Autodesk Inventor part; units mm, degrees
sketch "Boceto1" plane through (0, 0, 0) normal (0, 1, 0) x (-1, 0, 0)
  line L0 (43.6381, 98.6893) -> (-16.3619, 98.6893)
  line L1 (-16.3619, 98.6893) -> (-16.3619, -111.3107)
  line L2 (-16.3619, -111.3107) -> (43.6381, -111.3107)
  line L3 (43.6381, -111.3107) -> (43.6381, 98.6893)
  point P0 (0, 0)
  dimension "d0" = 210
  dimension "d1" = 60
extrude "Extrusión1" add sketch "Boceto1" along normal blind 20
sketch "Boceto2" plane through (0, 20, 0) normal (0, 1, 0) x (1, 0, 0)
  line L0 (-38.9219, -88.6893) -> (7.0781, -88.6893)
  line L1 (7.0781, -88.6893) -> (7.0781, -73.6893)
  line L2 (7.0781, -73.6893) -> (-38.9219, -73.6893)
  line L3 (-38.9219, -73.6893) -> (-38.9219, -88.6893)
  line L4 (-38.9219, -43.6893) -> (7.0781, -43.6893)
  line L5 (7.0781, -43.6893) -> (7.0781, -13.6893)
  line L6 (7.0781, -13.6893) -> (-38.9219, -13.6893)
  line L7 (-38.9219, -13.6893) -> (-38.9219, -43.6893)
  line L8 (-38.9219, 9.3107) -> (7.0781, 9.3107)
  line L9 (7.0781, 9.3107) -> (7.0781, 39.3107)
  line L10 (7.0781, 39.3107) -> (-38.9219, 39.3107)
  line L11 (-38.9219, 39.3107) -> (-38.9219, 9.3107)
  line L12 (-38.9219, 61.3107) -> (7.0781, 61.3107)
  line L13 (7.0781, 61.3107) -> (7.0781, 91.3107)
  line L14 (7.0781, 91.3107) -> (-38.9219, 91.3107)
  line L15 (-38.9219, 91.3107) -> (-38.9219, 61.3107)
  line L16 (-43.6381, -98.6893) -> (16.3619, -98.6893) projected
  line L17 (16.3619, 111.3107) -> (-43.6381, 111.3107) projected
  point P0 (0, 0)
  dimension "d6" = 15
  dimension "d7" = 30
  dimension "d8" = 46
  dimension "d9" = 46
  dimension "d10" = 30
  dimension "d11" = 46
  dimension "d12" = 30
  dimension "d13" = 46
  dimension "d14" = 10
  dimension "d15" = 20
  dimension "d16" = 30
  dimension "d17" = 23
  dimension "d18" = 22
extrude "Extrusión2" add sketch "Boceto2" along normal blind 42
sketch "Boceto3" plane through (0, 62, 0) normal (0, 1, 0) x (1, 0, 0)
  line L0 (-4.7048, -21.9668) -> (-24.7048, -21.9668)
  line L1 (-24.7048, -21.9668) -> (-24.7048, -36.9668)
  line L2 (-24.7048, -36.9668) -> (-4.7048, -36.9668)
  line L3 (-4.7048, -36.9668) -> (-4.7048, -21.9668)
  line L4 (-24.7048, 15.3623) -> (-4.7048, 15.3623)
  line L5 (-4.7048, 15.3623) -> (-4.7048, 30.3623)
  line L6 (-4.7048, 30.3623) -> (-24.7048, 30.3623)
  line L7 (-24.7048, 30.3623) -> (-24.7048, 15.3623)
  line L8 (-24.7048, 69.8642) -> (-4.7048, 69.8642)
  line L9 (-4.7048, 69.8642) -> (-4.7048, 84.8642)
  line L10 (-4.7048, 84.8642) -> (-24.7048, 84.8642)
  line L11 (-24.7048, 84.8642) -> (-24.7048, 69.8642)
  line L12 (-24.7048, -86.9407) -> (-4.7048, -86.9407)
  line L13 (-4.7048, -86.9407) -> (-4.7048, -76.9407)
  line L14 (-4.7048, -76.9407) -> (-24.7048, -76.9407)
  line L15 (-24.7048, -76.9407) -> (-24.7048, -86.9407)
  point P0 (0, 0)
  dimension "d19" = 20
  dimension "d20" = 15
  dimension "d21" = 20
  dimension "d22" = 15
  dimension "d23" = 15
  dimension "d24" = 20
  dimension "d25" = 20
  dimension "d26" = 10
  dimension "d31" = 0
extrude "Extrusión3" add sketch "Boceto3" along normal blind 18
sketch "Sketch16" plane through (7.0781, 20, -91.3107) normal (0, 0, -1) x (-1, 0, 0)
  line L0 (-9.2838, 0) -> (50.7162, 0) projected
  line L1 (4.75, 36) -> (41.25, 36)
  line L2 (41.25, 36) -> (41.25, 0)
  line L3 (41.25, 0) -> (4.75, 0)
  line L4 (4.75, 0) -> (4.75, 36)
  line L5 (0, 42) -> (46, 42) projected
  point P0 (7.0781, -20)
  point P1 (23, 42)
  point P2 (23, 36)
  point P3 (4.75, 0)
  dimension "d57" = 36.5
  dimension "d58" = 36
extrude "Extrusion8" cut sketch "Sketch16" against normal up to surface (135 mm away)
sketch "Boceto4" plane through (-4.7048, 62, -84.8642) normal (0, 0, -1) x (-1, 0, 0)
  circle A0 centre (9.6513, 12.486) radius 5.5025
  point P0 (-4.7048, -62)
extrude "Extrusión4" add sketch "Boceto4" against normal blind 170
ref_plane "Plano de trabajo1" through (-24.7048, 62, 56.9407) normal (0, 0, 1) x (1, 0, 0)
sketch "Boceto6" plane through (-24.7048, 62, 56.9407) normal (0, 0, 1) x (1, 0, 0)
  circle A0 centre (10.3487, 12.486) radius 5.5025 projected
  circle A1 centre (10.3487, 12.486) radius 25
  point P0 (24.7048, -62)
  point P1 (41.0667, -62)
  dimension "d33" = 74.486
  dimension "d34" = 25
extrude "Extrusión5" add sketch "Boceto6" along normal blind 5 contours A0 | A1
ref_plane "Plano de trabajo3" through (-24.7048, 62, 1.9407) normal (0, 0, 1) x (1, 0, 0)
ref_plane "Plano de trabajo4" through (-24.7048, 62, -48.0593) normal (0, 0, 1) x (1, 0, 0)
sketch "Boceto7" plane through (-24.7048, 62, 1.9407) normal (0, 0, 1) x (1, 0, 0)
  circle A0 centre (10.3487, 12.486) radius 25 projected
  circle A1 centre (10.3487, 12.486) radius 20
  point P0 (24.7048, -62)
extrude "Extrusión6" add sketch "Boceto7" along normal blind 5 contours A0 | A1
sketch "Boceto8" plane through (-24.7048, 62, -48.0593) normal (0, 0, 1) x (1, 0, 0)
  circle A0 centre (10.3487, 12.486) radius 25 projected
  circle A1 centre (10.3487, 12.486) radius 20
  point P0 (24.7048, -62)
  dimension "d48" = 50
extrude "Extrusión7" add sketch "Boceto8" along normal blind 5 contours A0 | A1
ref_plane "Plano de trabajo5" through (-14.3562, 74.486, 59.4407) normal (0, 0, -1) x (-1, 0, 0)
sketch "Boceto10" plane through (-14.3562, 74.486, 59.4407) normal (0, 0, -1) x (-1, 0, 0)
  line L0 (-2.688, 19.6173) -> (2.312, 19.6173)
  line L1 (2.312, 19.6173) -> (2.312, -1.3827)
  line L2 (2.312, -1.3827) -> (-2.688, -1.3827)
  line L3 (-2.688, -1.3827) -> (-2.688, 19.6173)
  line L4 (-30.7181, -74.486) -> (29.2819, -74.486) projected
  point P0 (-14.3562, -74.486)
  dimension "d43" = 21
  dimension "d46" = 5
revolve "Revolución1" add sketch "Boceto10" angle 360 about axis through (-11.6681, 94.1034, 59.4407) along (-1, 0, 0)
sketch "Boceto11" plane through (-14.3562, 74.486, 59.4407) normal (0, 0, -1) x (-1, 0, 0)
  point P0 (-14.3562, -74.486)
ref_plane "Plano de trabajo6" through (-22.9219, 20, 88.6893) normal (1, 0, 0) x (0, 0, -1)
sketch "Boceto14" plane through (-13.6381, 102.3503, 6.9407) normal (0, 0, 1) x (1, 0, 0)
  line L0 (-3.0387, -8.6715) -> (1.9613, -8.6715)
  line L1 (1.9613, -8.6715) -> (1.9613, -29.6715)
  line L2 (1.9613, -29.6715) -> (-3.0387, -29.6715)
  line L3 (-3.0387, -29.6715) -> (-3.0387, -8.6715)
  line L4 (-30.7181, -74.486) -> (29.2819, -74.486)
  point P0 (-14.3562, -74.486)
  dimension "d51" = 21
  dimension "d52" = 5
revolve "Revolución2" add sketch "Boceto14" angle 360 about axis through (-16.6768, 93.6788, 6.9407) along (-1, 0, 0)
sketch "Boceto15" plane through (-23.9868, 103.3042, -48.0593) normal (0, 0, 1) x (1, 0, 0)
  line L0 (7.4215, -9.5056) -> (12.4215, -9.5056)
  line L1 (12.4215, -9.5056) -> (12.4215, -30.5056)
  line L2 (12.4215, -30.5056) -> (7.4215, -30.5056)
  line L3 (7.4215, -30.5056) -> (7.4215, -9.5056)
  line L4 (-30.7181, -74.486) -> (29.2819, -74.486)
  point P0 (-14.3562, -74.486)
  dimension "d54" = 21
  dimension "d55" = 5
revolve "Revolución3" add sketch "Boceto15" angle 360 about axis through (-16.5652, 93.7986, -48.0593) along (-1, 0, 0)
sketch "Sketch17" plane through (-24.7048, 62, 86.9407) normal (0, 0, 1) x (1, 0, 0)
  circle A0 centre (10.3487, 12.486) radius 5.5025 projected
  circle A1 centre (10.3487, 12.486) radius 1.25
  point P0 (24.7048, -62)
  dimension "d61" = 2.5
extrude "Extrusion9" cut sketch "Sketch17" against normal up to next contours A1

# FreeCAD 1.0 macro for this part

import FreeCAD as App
import Part
import Sketcher
from FreeCAD import Vector

doc = App.newDocument("Part")
body = doc.addObject("PartDesign::Body", "Body")

# Sketch on XZ plane
sketch1 = doc.addObject("Sketcher::SketchObject", "Sketch")
body.addObject(sketch1)
sketch1.AttachmentSupport = (doc.XZ_Plane, [""])
sketch1.MapMode = "FlatFace"
sketch1.addGeometry([
    Part.LineSegment(Vector(-44, -111, 0), Vector(-44, 99, 0)),
    Part.LineSegment(Vector(-44, 99, 0), Vector(16, 99, 0)),
    Part.LineSegment(Vector(16, 99, 0), Vector(16, -111, 0)),
    Part.LineSegment(Vector(16, -111, 0), Vector(-44, -111, 0)),
], False)
sketch1.addConstraint([
    Sketcher.Constraint("Coincident", 0, 2, 1, 1),
    Sketcher.Constraint("Coincident", 1, 2, 2, 1),
    Sketcher.Constraint("Coincident", 2, 2, 3, 1),
    Sketcher.Constraint("Coincident", 3, 2, 0, 1),
    Sketcher.Constraint("Vertical", 0),
    Sketcher.Constraint("Horizontal", 1),
    Sketcher.Constraint("Vertical", 2),
    Sketcher.Constraint("Horizontal", 3),
    Sketcher.Constraint("DistanceX", 1, 1, 1, 2, 60.0),
    Sketcher.Constraint("DistanceY", 0, 1, 0, 2, 210.0),
    Sketcher.Constraint("DistanceX", 0, 2, -1, 1, 43.638),
    Sketcher.Constraint("DistanceY", -1, 1, 0, 2, 98.6893),
])
pad1 = doc.addObject("PartDesign::Pad", "Pad")
body.addObject(pad1)
pad1.Profile = sketch1
pad1.Length = 20
pad1.Reversed = True

# Sketch on XZ plane
sketch2 = doc.addObject("Sketcher::SketchObject", "Sketch001")
body.addObject(sketch2)
sketch2.AttachmentSupport = (doc.XZ_Plane, [""])
sketch2.MapMode = "FlatFace"
sketch2.AttachmentOffset = App.Placement(Vector(0, 0, -20), App.Rotation())
sketch2.addGeometry([
    Part.LineSegment(Vector(-39, 74, 0), Vector(-39, 89, 0)),  # 0
    Part.LineSegment(Vector(-39, 89, 0), Vector(7, 89, 0)),  # 1
    Part.LineSegment(Vector(7, 89, 0), Vector(7, 74, 0)),  # 2
    Part.LineSegment(Vector(7, 74, 0), Vector(-39, 74, 0)),  # 3
    Part.LineSegment(Vector(-39, 14, 0), Vector(-39, 44, 0)),  # 4
    Part.LineSegment(Vector(-39, 44, 0), Vector(7, 44, 0)),  # 5
    Part.LineSegment(Vector(7, 44, 0), Vector(7, 14, 0)),  # 6
    Part.LineSegment(Vector(7, 14, 0), Vector(-39, 14, 0)),  # 7
    Part.LineSegment(Vector(-39, -39, 0), Vector(-39, -9, 0)),  # 8
    Part.LineSegment(Vector(-39, -9, 0), Vector(7, -9, 0)),  # 9
    Part.LineSegment(Vector(7, -9, 0), Vector(7, -39, 0)),  # 10
    Part.LineSegment(Vector(7, -39, 0), Vector(-39, -39, 0)),  # 11
    Part.LineSegment(Vector(-39, -91, 0), Vector(-39, -61, 0)),  # 12
    Part.LineSegment(Vector(-39, -61, 0), Vector(7, -61, 0)),  # 13
    Part.LineSegment(Vector(7, -61, 0), Vector(7, -91, 0)),  # 14
    Part.LineSegment(Vector(7, -91, 0), Vector(-39, -91, 0)),  # 15
], False)
sketch2.addConstraint([
    Sketcher.Constraint("Coincident", 0, 2, 1, 1),
    Sketcher.Constraint("Coincident", 1, 2, 2, 1),
    Sketcher.Constraint("Coincident", 2, 2, 3, 1),
    Sketcher.Constraint("Coincident", 3, 2, 0, 1),
    Sketcher.Constraint("Coincident", 4, 2, 5, 1),
    Sketcher.Constraint("Coincident", 5, 2, 6, 1),
    Sketcher.Constraint("Coincident", 6, 2, 7, 1),
    Sketcher.Constraint("Coincident", 7, 2, 4, 1),
    Sketcher.Constraint("Coincident", 8, 2, 9, 1),
    Sketcher.Constraint("Coincident", 9, 2, 10, 1),
    Sketcher.Constraint("Coincident", 10, 2, 11, 1),
    Sketcher.Constraint("Coincident", 11, 2, 8, 1),
    Sketcher.Constraint("Coincident", 12, 2, 13, 1),
    Sketcher.Constraint("Coincident", 13, 2, 14, 1),
    Sketcher.Constraint("Coincident", 14, 2, 15, 1),
    Sketcher.Constraint("Coincident", 15, 2, 12, 1),
    Sketcher.Constraint("Vertical", 0),
    Sketcher.Constraint("Horizontal", 1),
    Sketcher.Constraint("Vertical", 2),
    Sketcher.Constraint("Horizontal", 3),
    Sketcher.Constraint("Vertical", 4),
    Sketcher.Constraint("Horizontal", 5),
    Sketcher.Constraint("Vertical", 6),
    Sketcher.Constraint("Horizontal", 7),
    Sketcher.Constraint("Vertical", 8),
    Sketcher.Constraint("Horizontal", 9),
    Sketcher.Constraint("Vertical", 10),
    Sketcher.Constraint("Horizontal", 11),
    Sketcher.Constraint("Vertical", 12),
    Sketcher.Constraint("Horizontal", 13),
    Sketcher.Constraint("Vertical", 14),
    Sketcher.Constraint("Horizontal", 15),
    Sketcher.Constraint("Vertical", 3, 2, 4, 2),
    Sketcher.Constraint("Vertical", 2, 2, 5, 2),
    Sketcher.Constraint("Vertical", 7, 2, 8, 2),
    Sketcher.Constraint("Vertical", 6, 2, 9, 2),
    Sketcher.Constraint("Vertical", 11, 2, 12, 2),
    Sketcher.Constraint("Vertical", 10, 2, 13, 2),
    Sketcher.Constraint("Equal", 6, 8),
    Sketcher.Constraint("Equal", 10, 12),
    Sketcher.Constraint("DistanceX", 1, 1, 1, 2, 46.0),
    Sketcher.Constraint("DistanceY", 0, 1, 0, 2, 15.0),
    Sketcher.Constraint("DistanceY", 4, 1, 4, 2, 30.0),
    Sketcher.Constraint("DistanceY", 4, 2, 3, 2, 30.0),
    Sketcher.Constraint("DistanceY", 8, 2, 7, 2, 23.0),
    Sketcher.Constraint("DistanceY", 12, 2, 11, 2, 22.0),
    Sketcher.Constraint("DistanceX", 0, 2, -1, 1, 38.922),
    Sketcher.Constraint("DistanceY", -1, 1, 0, 2, 88.6893),
])
pad2 = doc.addObject("PartDesign::Pad", "Pad001")
body.addObject(pad2)
pad2.Profile = sketch2
pad2.Length = 42
pad2.Reversed = True

# Sketch on XZ plane
sketch3 = doc.addObject("Sketcher::SketchObject", "Sketch002")
body.addObject(sketch3)
sketch3.AttachmentSupport = (doc.XZ_Plane, [""])
sketch3.MapMode = "FlatFace"
sketch3.AttachmentOffset = App.Placement(Vector(0, 0, -62), App.Rotation())
sketch3.addGeometry([
    Part.LineSegment(Vector(-5, 37, 0), Vector(-5, 22, 0)),  # 0
    Part.LineSegment(Vector(-5, 22, 0), Vector(-25, 22, 0)),  # 1
    Part.LineSegment(Vector(-25, 22, 0), Vector(-25, 37, 0)),  # 2
    Part.LineSegment(Vector(-25, 37, 0), Vector(-5, 37, 0)),  # 3
    Part.LineSegment(Vector(-25, -30, 0), Vector(-25, -15, 0)),  # 4
    Part.LineSegment(Vector(-25, -15, 0), Vector(-5, -15, 0)),  # 5
    Part.LineSegment(Vector(-5, -15, 0), Vector(-5, -30, 0)),  # 6
    Part.LineSegment(Vector(-5, -30, 0), Vector(-25, -30, 0)),  # 7
    Part.LineSegment(Vector(-25, -85, 0), Vector(-25, -70, 0)),  # 8
    Part.LineSegment(Vector(-25, -70, 0), Vector(-5, -70, 0)),  # 9
    Part.LineSegment(Vector(-5, -70, 0), Vector(-5, -85, 0)),  # 10
    Part.LineSegment(Vector(-5, -85, 0), Vector(-25, -85, 0)),  # 11
    Part.LineSegment(Vector(-25, 77, 0), Vector(-25, 87, 0)),  # 12
    Part.LineSegment(Vector(-25, 87, 0), Vector(-5, 87, 0)),  # 13
    Part.LineSegment(Vector(-5, 87, 0), Vector(-5, 77, 0)),  # 14
    Part.LineSegment(Vector(-5, 77, 0), Vector(-25, 77, 0)),  # 15
], False)
sketch3.addConstraint([
    Sketcher.Constraint("Coincident", 0, 2, 1, 1),
    Sketcher.Constraint("Coincident", 1, 2, 2, 1),
    Sketcher.Constraint("Coincident", 2, 2, 3, 1),
    Sketcher.Constraint("Coincident", 3, 2, 0, 1),
    Sketcher.Constraint("Coincident", 4, 2, 5, 1),
    Sketcher.Constraint("Coincident", 5, 2, 6, 1),
    Sketcher.Constraint("Coincident", 6, 2, 7, 1),
    Sketcher.Constraint("Coincident", 7, 2, 4, 1),
    Sketcher.Constraint("Coincident", 8, 2, 9, 1),
    Sketcher.Constraint("Coincident", 9, 2, 10, 1),
    Sketcher.Constraint("Coincident", 10, 2, 11, 1),
    Sketcher.Constraint("Coincident", 11, 2, 8, 1),
    Sketcher.Constraint("Coincident", 12, 2, 13, 1),
    Sketcher.Constraint("Coincident", 13, 2, 14, 1),
    Sketcher.Constraint("Coincident", 14, 2, 15, 1),
    Sketcher.Constraint("Coincident", 15, 2, 12, 1),
    Sketcher.Constraint("Vertical", 0),
    Sketcher.Constraint("Horizontal", 1),
    Sketcher.Constraint("Vertical", 2),
    Sketcher.Constraint("Horizontal", 3),
    Sketcher.Constraint("Vertical", 4),
    Sketcher.Constraint("Horizontal", 5),
    Sketcher.Constraint("Vertical", 6),
    Sketcher.Constraint("Horizontal", 7),
    Sketcher.Constraint("Vertical", 8),
    Sketcher.Constraint("Horizontal", 9),
    Sketcher.Constraint("Vertical", 10),
    Sketcher.Constraint("Horizontal", 11),
    Sketcher.Constraint("Vertical", 12),
    Sketcher.Constraint("Horizontal", 13),
    Sketcher.Constraint("Vertical", 14),
    Sketcher.Constraint("Horizontal", 15),
    Sketcher.Constraint("Vertical", 2, 2, 4, 2),
    Sketcher.Constraint("Vertical", 3, 2, 5, 2),
    Sketcher.Constraint("Vertical", 7, 2, 8, 2),
    Sketcher.Constraint("Vertical", 6, 2, 9, 2),
    Sketcher.Constraint("Vertical", 11, 2, 12, 2),
    Sketcher.Constraint("Vertical", 10, 2, 13, 2),
    Sketcher.Constraint("Equal", 2, 4),
    Sketcher.Constraint("Equal", 6, 8),
    Sketcher.Constraint("DistanceX", 1, 2, 1, 1, 20.0),
    Sketcher.Constraint("DistanceY", 0, 2, 0, 1, 15.0),
    Sketcher.Constraint("DistanceY", 12, 1, 12, 2, 10.0),
    Sketcher.Constraint("DistanceY", 4, 2, 1, 2, 37.329),
    Sketcher.Constraint("DistanceY", 8, 2, 7, 2, 39.502),
    Sketcher.Constraint("DistanceY", 2, 2, 12, 2, 49.974),
    Sketcher.Constraint("DistanceX", 0, 2, -1, 1, 4.7048),
    Sketcher.Constraint("DistanceY", -1, 1, 0, 2, 21.9668),
])
pad3 = doc.addObject("PartDesign::Pad", "Pad002")
body.addObject(pad3)
pad3.Profile = sketch3
pad3.Length = 18
pad3.Reversed = True

# Sketch on XY plane
sketch4 = doc.addObject("Sketcher::SketchObject", "Sketch003")
body.addObject(sketch4)
sketch4.AttachmentSupport = (doc.XY_Plane, [""])
sketch4.MapMode = "FlatFace"
sketch4.AttachmentOffset = App.Placement(Vector(0, 0, -91.3107), App.Rotation())
sketch4.addGeometry([
    Part.LineSegment(Vector(2, 56, 0), Vector(2, 20, 0)),
    Part.LineSegment(Vector(2, 20, 0), Vector(-34, 20, 0)),
    Part.LineSegment(Vector(-34, 20, 0), Vector(-34, 56, 0)),
    Part.LineSegment(Vector(-34, 56, 0), Vector(2, 56, 0)),
], False)
sketch4.addConstraint([
    Sketcher.Constraint("Coincident", 0, 2, 1, 1),
    Sketcher.Constraint("Coincident", 1, 2, 2, 1),
    Sketcher.Constraint("Coincident", 2, 2, 3, 1),
    Sketcher.Constraint("Coincident", 3, 2, 0, 1),
    Sketcher.Constraint("Vertical", 0),
    Sketcher.Constraint("Horizontal", 1),
    Sketcher.Constraint("Vertical", 2),
    Sketcher.Constraint("Horizontal", 3),
    Sketcher.Constraint("DistanceY", 0, 2, 0, 1, 36.0),
    Sketcher.Constraint("DistanceX", 1, 2, 1, 1, 36.5),
    Sketcher.Constraint("DistanceY", -1, 1, 0, 2, 20.0),
    Sketcher.Constraint("DistanceX", -1, 1, 0, 2, 2.328),
])
pocket1 = doc.addObject("PartDesign::Pocket", "Pocket")
body.addObject(pocket1)
pocket1.Profile = sketch4
pocket1.Length = 135
pocket1.Reversed = True

# Sketch on XY plane
sketch5 = doc.addObject("Sketcher::SketchObject", "Sketch004")
body.addObject(sketch5)
sketch5.AttachmentSupport = (doc.XY_Plane, [""])
sketch5.MapMode = "FlatFace"
sketch5.AttachmentOffset = App.Placement(Vector(0, 0, -84.8642), App.Rotation())
sketch5.addGeometry(Part.Circle(Vector(-14, 74, 0), Vector(0, 0, 1), 6), False)
sketch5.addConstraint([
    Sketcher.Constraint("Diameter", 0, 11.005),
    Sketcher.Constraint("DistanceX", 0, 3, -1, 1, 14.356),
    Sketcher.Constraint("DistanceY", -1, 1, 0, 3, 74.486),
])
pad4 = doc.addObject("PartDesign::Pad", "Pad003")
body.addObject(pad4)
pad4.Profile = sketch5
pad4.Length = 170

# Sketch on XY plane
sketch6 = doc.addObject("Sketcher::SketchObject", "Sketch005")
body.addObject(sketch6)
sketch6.AttachmentSupport = (doc.XY_Plane, [""])
sketch6.MapMode = "FlatFace"
sketch6.AttachmentOffset = App.Placement(Vector(0, 0, 56.9407), App.Rotation())
sketch6.addGeometry(Part.Circle(Vector(-14, 74, 0), Vector(0, 0, 1), 25), False)
sketch6.addConstraint([
    Sketcher.Constraint("Diameter", 0, 50.0),
    Sketcher.Constraint("DistanceY", -1, 1, 0, 3, 74.486),
    Sketcher.Constraint("DistanceX", 0, 3, -1, 1, 14.356),
])
pad5 = doc.addObject("PartDesign::Pad", "Pad004")
body.addObject(pad5)
pad5.Profile = sketch6
pad5.Length = 5

# Sketch on XY plane
sketch7 = doc.addObject("Sketcher::SketchObject", "Sketch006")
body.addObject(sketch7)
sketch7.AttachmentSupport = (doc.XY_Plane, [""])
sketch7.MapMode = "FlatFace"
sketch7.AttachmentOffset = App.Placement(Vector(0, 0, 1.9407), App.Rotation())
sketch7.addGeometry(Part.Circle(Vector(-14, 74, 0), Vector(0, 0, 1), 25), False)
sketch7.addConstraint([
    Sketcher.Constraint("Diameter", 0, 50.0),
    Sketcher.Constraint("DistanceX", 0, 3, -1, 1, 14.356),
    Sketcher.Constraint("DistanceY", -1, 1, 0, 3, 74.486),
])
pad6 = doc.addObject("PartDesign::Pad", "Pad005")
body.addObject(pad6)
pad6.Profile = sketch7
pad6.Length = 5

# Sketch on XY plane
sketch8 = doc.addObject("Sketcher::SketchObject", "Sketch007")
body.addObject(sketch8)
sketch8.AttachmentSupport = (doc.XY_Plane, [""])
sketch8.MapMode = "FlatFace"
sketch8.AttachmentOffset = App.Placement(Vector(0, 0, -48.0593), App.Rotation())
sketch8.addGeometry(Part.Circle(Vector(-14, 74, 0), Vector(0, 0, 1), 25), False)
sketch8.addConstraint([
    Sketcher.Constraint("Diameter", 0, 50.0),
    Sketcher.Constraint("DistanceX", 0, 3, -1, 1, 14.356),
    Sketcher.Constraint("DistanceY", -1, 1, 0, 3, 74.486),
])
pad7 = doc.addObject("PartDesign::Pad", "Pad006")
body.addObject(pad7)
pad7.Profile = sketch8
pad7.Length = 5

# Sketch on XY plane
sketch9 = doc.addObject("Sketcher::SketchObject", "Sketch008")
body.addObject(sketch9)
sketch9.AttachmentSupport = (doc.XY_Plane, [""])
sketch9.MapMode = "FlatFace"
sketch9.AttachmentOffset = App.Placement(Vector(0, 0, 59.4407), App.Rotation())
sketch9.addGeometry([
    Part.LineSegment(Vector(-16.7, 94.1, 0), Vector(-11.7, 94.1, 0)),
    Part.LineSegment(Vector(-11.7, 94.1, 0), Vector(-11.7, 73.1, 0)),
    Part.LineSegment(Vector(-11.7, 73.1, 0), Vector(-16.7, 73.1, 0)),
    Part.LineSegment(Vector(-16.7, 73.1, 0), Vector(-16.7, 94.1, 0)),
], False)
sketch9.addGeometry(Part.LineSegment(Vector(-11.7, 94.1, 0), Vector(-16.7, 94.1, 0)), True)  # axis
sketch9.addConstraint([
    Sketcher.Constraint("Coincident", 0, 2, 1, 1),
    Sketcher.Constraint("Coincident", 1, 2, 2, 1),
    Sketcher.Constraint("Coincident", 2, 2, 3, 1),
    Sketcher.Constraint("Coincident", 3, 2, 0, 1),
    Sketcher.Constraint("Horizontal", 0),
    Sketcher.Constraint("Vertical", 1),
    Sketcher.Constraint("Horizontal", 2),
    Sketcher.Constraint("Vertical", 3),
    Sketcher.Constraint("Horizontal", 4),
    Sketcher.Constraint("Coincident", 4, 1, 0, 2),
    Sketcher.Constraint("Vertical", 2, 2, 4, 2),
    Sketcher.Constraint("DistanceX", 0, 1, 0, 2, 5.0),
    Sketcher.Constraint("DistanceY", 1, 2, 1, 1, 21.0),
    Sketcher.Constraint("DistanceX", 0, 2, -1, 1, 11.6682),
    Sketcher.Constraint("DistanceY", -1, 1, 0, 2, 94.1033),
])
revolution = doc.addObject("PartDesign::Revolution", "Revolution")
body.addObject(revolution)
revolution.Profile = sketch9
revolution.ReferenceAxis = (sketch9, ["Axis0"])
revolution.Angle = 360

# Sketch on XY plane
sketch10 = doc.addObject("Sketcher::SketchObject", "Sketch009")
body.addObject(sketch10)
sketch10.AttachmentSupport = (doc.XY_Plane, [""])
sketch10.MapMode = "FlatFace"
sketch10.AttachmentOffset = App.Placement(Vector(0, 0, 6.9407), App.Rotation())
sketch10.addGeometry([
    Part.LineSegment(Vector(-12, 94, 0), Vector(-17, 94, 0)),
    Part.LineSegment(Vector(-17, 94, 0), Vector(-17, 73, 0)),
    Part.LineSegment(Vector(-17, 73, 0), Vector(-12, 73, 0)),
    Part.LineSegment(Vector(-12, 73, 0), Vector(-12, 94, 0)),
], False)
sketch10.addGeometry(Part.LineSegment(Vector(-12, 94, 0), Vector(-17, 94, 0)), True)  # axis
sketch10.addConstraint([
    Sketcher.Constraint("Coincident", 0, 2, 1, 1),
    Sketcher.Constraint("Coincident", 1, 2, 2, 1),
    Sketcher.Constraint("Coincident", 2, 2, 3, 1),
    Sketcher.Constraint("Coincident", 3, 2, 0, 1),
    Sketcher.Constraint("Horizontal", 0),
    Sketcher.Constraint("Vertical", 1),
    Sketcher.Constraint("Horizontal", 2),
    Sketcher.Constraint("Vertical", 3),
    Sketcher.Constraint("Horizontal", 4),
    Sketcher.Constraint("Coincident", 4, 1, 3, 2),
    Sketcher.Constraint("Vertical", 1, 2, 4, 2),
    Sketcher.Constraint("DistanceX", 0, 2, 0, 1, 5.0),
    Sketcher.Constraint("DistanceY", 1, 2, 1, 1, 21.0),
    Sketcher.Constraint("DistanceX", 0, 2, -1, 1, 16.6768),
    Sketcher.Constraint("DistanceY", -1, 1, 0, 2, 93.6788),
])
revolution2 = doc.addObject("PartDesign::Revolution", "Revolution001")
body.addObject(revolution2)
revolution2.Profile = sketch10
revolution2.ReferenceAxis = (sketch10, ["Axis0"])
revolution2.Angle = 360

# Sketch on XY plane
sketch11 = doc.addObject("Sketcher::SketchObject", "Sketch010")
body.addObject(sketch11)
sketch11.AttachmentSupport = (doc.XY_Plane, [""])
sketch11.MapMode = "FlatFace"
sketch11.AttachmentOffset = App.Placement(Vector(0, 0, -48.0593), App.Rotation())
sketch11.addGeometry([
    Part.LineSegment(Vector(-12, 94, 0), Vector(-17, 94, 0)),
    Part.LineSegment(Vector(-17, 94, 0), Vector(-17, 73, 0)),
    Part.LineSegment(Vector(-17, 73, 0), Vector(-12, 73, 0)),
    Part.LineSegment(Vector(-12, 73, 0), Vector(-12, 94, 0)),
], False)
sketch11.addGeometry(Part.LineSegment(Vector(-12, 94, 0), Vector(-17, 94, 0)), True)  # axis
sketch11.addConstraint([
    Sketcher.Constraint("Coincident", 0, 2, 1, 1),
    Sketcher.Constraint("Coincident", 1, 2, 2, 1),
    Sketcher.Constraint("Coincident", 2, 2, 3, 1),
    Sketcher.Constraint("Coincident", 3, 2, 0, 1),
    Sketcher.Constraint("Horizontal", 0),
    Sketcher.Constraint("Vertical", 1),
    Sketcher.Constraint("Horizontal", 2),
    Sketcher.Constraint("Vertical", 3),
    Sketcher.Constraint("Horizontal", 4),
    Sketcher.Constraint("Coincident", 4, 1, 3, 2),
    Sketcher.Constraint("Vertical", 1, 2, 4, 2),
    Sketcher.Constraint("DistanceX", 0, 2, 0, 1, 5.0),
    Sketcher.Constraint("DistanceY", 1, 2, 1, 1, 21.0),
    Sketcher.Constraint("DistanceX", 0, 2, -1, 1, 16.5653),
    Sketcher.Constraint("DistanceY", -1, 1, 0, 2, 93.7986),
])
revolution3 = doc.addObject("PartDesign::Revolution", "Revolution002")
body.addObject(revolution3)
revolution3.Profile = sketch11
revolution3.ReferenceAxis = (sketch11, ["Axis0"])
revolution3.Angle = 360

# Sketch on XY plane
sketch12 = doc.addObject("Sketcher::SketchObject", "Sketch011")
body.addObject(sketch12)
sketch12.AttachmentSupport = (doc.XY_Plane, [""])
sketch12.MapMode = "FlatFace"
sketch12.AttachmentOffset = App.Placement(Vector(0, 0, 86.9407), App.Rotation())
sketch12.addGeometry(Part.Circle(Vector(-14.4, 74.5, 0), Vector(0, 0, 1), 1.2), False)
sketch12.addConstraint([
    Sketcher.Constraint("Diameter", 0, 2.5),
    Sketcher.Constraint("DistanceX", 0, 3, -1, 1, 14.356),
    Sketcher.Constraint("DistanceY", -1, 1, 0, 3, 74.486),
])
pocket2 = doc.addObject("PartDesign::Pocket", "Pocket001")
body.addObject(pocket2)
pocket2.Profile = sketch12
pocket2.Type = "UpToFirst"

doc.recompute()
